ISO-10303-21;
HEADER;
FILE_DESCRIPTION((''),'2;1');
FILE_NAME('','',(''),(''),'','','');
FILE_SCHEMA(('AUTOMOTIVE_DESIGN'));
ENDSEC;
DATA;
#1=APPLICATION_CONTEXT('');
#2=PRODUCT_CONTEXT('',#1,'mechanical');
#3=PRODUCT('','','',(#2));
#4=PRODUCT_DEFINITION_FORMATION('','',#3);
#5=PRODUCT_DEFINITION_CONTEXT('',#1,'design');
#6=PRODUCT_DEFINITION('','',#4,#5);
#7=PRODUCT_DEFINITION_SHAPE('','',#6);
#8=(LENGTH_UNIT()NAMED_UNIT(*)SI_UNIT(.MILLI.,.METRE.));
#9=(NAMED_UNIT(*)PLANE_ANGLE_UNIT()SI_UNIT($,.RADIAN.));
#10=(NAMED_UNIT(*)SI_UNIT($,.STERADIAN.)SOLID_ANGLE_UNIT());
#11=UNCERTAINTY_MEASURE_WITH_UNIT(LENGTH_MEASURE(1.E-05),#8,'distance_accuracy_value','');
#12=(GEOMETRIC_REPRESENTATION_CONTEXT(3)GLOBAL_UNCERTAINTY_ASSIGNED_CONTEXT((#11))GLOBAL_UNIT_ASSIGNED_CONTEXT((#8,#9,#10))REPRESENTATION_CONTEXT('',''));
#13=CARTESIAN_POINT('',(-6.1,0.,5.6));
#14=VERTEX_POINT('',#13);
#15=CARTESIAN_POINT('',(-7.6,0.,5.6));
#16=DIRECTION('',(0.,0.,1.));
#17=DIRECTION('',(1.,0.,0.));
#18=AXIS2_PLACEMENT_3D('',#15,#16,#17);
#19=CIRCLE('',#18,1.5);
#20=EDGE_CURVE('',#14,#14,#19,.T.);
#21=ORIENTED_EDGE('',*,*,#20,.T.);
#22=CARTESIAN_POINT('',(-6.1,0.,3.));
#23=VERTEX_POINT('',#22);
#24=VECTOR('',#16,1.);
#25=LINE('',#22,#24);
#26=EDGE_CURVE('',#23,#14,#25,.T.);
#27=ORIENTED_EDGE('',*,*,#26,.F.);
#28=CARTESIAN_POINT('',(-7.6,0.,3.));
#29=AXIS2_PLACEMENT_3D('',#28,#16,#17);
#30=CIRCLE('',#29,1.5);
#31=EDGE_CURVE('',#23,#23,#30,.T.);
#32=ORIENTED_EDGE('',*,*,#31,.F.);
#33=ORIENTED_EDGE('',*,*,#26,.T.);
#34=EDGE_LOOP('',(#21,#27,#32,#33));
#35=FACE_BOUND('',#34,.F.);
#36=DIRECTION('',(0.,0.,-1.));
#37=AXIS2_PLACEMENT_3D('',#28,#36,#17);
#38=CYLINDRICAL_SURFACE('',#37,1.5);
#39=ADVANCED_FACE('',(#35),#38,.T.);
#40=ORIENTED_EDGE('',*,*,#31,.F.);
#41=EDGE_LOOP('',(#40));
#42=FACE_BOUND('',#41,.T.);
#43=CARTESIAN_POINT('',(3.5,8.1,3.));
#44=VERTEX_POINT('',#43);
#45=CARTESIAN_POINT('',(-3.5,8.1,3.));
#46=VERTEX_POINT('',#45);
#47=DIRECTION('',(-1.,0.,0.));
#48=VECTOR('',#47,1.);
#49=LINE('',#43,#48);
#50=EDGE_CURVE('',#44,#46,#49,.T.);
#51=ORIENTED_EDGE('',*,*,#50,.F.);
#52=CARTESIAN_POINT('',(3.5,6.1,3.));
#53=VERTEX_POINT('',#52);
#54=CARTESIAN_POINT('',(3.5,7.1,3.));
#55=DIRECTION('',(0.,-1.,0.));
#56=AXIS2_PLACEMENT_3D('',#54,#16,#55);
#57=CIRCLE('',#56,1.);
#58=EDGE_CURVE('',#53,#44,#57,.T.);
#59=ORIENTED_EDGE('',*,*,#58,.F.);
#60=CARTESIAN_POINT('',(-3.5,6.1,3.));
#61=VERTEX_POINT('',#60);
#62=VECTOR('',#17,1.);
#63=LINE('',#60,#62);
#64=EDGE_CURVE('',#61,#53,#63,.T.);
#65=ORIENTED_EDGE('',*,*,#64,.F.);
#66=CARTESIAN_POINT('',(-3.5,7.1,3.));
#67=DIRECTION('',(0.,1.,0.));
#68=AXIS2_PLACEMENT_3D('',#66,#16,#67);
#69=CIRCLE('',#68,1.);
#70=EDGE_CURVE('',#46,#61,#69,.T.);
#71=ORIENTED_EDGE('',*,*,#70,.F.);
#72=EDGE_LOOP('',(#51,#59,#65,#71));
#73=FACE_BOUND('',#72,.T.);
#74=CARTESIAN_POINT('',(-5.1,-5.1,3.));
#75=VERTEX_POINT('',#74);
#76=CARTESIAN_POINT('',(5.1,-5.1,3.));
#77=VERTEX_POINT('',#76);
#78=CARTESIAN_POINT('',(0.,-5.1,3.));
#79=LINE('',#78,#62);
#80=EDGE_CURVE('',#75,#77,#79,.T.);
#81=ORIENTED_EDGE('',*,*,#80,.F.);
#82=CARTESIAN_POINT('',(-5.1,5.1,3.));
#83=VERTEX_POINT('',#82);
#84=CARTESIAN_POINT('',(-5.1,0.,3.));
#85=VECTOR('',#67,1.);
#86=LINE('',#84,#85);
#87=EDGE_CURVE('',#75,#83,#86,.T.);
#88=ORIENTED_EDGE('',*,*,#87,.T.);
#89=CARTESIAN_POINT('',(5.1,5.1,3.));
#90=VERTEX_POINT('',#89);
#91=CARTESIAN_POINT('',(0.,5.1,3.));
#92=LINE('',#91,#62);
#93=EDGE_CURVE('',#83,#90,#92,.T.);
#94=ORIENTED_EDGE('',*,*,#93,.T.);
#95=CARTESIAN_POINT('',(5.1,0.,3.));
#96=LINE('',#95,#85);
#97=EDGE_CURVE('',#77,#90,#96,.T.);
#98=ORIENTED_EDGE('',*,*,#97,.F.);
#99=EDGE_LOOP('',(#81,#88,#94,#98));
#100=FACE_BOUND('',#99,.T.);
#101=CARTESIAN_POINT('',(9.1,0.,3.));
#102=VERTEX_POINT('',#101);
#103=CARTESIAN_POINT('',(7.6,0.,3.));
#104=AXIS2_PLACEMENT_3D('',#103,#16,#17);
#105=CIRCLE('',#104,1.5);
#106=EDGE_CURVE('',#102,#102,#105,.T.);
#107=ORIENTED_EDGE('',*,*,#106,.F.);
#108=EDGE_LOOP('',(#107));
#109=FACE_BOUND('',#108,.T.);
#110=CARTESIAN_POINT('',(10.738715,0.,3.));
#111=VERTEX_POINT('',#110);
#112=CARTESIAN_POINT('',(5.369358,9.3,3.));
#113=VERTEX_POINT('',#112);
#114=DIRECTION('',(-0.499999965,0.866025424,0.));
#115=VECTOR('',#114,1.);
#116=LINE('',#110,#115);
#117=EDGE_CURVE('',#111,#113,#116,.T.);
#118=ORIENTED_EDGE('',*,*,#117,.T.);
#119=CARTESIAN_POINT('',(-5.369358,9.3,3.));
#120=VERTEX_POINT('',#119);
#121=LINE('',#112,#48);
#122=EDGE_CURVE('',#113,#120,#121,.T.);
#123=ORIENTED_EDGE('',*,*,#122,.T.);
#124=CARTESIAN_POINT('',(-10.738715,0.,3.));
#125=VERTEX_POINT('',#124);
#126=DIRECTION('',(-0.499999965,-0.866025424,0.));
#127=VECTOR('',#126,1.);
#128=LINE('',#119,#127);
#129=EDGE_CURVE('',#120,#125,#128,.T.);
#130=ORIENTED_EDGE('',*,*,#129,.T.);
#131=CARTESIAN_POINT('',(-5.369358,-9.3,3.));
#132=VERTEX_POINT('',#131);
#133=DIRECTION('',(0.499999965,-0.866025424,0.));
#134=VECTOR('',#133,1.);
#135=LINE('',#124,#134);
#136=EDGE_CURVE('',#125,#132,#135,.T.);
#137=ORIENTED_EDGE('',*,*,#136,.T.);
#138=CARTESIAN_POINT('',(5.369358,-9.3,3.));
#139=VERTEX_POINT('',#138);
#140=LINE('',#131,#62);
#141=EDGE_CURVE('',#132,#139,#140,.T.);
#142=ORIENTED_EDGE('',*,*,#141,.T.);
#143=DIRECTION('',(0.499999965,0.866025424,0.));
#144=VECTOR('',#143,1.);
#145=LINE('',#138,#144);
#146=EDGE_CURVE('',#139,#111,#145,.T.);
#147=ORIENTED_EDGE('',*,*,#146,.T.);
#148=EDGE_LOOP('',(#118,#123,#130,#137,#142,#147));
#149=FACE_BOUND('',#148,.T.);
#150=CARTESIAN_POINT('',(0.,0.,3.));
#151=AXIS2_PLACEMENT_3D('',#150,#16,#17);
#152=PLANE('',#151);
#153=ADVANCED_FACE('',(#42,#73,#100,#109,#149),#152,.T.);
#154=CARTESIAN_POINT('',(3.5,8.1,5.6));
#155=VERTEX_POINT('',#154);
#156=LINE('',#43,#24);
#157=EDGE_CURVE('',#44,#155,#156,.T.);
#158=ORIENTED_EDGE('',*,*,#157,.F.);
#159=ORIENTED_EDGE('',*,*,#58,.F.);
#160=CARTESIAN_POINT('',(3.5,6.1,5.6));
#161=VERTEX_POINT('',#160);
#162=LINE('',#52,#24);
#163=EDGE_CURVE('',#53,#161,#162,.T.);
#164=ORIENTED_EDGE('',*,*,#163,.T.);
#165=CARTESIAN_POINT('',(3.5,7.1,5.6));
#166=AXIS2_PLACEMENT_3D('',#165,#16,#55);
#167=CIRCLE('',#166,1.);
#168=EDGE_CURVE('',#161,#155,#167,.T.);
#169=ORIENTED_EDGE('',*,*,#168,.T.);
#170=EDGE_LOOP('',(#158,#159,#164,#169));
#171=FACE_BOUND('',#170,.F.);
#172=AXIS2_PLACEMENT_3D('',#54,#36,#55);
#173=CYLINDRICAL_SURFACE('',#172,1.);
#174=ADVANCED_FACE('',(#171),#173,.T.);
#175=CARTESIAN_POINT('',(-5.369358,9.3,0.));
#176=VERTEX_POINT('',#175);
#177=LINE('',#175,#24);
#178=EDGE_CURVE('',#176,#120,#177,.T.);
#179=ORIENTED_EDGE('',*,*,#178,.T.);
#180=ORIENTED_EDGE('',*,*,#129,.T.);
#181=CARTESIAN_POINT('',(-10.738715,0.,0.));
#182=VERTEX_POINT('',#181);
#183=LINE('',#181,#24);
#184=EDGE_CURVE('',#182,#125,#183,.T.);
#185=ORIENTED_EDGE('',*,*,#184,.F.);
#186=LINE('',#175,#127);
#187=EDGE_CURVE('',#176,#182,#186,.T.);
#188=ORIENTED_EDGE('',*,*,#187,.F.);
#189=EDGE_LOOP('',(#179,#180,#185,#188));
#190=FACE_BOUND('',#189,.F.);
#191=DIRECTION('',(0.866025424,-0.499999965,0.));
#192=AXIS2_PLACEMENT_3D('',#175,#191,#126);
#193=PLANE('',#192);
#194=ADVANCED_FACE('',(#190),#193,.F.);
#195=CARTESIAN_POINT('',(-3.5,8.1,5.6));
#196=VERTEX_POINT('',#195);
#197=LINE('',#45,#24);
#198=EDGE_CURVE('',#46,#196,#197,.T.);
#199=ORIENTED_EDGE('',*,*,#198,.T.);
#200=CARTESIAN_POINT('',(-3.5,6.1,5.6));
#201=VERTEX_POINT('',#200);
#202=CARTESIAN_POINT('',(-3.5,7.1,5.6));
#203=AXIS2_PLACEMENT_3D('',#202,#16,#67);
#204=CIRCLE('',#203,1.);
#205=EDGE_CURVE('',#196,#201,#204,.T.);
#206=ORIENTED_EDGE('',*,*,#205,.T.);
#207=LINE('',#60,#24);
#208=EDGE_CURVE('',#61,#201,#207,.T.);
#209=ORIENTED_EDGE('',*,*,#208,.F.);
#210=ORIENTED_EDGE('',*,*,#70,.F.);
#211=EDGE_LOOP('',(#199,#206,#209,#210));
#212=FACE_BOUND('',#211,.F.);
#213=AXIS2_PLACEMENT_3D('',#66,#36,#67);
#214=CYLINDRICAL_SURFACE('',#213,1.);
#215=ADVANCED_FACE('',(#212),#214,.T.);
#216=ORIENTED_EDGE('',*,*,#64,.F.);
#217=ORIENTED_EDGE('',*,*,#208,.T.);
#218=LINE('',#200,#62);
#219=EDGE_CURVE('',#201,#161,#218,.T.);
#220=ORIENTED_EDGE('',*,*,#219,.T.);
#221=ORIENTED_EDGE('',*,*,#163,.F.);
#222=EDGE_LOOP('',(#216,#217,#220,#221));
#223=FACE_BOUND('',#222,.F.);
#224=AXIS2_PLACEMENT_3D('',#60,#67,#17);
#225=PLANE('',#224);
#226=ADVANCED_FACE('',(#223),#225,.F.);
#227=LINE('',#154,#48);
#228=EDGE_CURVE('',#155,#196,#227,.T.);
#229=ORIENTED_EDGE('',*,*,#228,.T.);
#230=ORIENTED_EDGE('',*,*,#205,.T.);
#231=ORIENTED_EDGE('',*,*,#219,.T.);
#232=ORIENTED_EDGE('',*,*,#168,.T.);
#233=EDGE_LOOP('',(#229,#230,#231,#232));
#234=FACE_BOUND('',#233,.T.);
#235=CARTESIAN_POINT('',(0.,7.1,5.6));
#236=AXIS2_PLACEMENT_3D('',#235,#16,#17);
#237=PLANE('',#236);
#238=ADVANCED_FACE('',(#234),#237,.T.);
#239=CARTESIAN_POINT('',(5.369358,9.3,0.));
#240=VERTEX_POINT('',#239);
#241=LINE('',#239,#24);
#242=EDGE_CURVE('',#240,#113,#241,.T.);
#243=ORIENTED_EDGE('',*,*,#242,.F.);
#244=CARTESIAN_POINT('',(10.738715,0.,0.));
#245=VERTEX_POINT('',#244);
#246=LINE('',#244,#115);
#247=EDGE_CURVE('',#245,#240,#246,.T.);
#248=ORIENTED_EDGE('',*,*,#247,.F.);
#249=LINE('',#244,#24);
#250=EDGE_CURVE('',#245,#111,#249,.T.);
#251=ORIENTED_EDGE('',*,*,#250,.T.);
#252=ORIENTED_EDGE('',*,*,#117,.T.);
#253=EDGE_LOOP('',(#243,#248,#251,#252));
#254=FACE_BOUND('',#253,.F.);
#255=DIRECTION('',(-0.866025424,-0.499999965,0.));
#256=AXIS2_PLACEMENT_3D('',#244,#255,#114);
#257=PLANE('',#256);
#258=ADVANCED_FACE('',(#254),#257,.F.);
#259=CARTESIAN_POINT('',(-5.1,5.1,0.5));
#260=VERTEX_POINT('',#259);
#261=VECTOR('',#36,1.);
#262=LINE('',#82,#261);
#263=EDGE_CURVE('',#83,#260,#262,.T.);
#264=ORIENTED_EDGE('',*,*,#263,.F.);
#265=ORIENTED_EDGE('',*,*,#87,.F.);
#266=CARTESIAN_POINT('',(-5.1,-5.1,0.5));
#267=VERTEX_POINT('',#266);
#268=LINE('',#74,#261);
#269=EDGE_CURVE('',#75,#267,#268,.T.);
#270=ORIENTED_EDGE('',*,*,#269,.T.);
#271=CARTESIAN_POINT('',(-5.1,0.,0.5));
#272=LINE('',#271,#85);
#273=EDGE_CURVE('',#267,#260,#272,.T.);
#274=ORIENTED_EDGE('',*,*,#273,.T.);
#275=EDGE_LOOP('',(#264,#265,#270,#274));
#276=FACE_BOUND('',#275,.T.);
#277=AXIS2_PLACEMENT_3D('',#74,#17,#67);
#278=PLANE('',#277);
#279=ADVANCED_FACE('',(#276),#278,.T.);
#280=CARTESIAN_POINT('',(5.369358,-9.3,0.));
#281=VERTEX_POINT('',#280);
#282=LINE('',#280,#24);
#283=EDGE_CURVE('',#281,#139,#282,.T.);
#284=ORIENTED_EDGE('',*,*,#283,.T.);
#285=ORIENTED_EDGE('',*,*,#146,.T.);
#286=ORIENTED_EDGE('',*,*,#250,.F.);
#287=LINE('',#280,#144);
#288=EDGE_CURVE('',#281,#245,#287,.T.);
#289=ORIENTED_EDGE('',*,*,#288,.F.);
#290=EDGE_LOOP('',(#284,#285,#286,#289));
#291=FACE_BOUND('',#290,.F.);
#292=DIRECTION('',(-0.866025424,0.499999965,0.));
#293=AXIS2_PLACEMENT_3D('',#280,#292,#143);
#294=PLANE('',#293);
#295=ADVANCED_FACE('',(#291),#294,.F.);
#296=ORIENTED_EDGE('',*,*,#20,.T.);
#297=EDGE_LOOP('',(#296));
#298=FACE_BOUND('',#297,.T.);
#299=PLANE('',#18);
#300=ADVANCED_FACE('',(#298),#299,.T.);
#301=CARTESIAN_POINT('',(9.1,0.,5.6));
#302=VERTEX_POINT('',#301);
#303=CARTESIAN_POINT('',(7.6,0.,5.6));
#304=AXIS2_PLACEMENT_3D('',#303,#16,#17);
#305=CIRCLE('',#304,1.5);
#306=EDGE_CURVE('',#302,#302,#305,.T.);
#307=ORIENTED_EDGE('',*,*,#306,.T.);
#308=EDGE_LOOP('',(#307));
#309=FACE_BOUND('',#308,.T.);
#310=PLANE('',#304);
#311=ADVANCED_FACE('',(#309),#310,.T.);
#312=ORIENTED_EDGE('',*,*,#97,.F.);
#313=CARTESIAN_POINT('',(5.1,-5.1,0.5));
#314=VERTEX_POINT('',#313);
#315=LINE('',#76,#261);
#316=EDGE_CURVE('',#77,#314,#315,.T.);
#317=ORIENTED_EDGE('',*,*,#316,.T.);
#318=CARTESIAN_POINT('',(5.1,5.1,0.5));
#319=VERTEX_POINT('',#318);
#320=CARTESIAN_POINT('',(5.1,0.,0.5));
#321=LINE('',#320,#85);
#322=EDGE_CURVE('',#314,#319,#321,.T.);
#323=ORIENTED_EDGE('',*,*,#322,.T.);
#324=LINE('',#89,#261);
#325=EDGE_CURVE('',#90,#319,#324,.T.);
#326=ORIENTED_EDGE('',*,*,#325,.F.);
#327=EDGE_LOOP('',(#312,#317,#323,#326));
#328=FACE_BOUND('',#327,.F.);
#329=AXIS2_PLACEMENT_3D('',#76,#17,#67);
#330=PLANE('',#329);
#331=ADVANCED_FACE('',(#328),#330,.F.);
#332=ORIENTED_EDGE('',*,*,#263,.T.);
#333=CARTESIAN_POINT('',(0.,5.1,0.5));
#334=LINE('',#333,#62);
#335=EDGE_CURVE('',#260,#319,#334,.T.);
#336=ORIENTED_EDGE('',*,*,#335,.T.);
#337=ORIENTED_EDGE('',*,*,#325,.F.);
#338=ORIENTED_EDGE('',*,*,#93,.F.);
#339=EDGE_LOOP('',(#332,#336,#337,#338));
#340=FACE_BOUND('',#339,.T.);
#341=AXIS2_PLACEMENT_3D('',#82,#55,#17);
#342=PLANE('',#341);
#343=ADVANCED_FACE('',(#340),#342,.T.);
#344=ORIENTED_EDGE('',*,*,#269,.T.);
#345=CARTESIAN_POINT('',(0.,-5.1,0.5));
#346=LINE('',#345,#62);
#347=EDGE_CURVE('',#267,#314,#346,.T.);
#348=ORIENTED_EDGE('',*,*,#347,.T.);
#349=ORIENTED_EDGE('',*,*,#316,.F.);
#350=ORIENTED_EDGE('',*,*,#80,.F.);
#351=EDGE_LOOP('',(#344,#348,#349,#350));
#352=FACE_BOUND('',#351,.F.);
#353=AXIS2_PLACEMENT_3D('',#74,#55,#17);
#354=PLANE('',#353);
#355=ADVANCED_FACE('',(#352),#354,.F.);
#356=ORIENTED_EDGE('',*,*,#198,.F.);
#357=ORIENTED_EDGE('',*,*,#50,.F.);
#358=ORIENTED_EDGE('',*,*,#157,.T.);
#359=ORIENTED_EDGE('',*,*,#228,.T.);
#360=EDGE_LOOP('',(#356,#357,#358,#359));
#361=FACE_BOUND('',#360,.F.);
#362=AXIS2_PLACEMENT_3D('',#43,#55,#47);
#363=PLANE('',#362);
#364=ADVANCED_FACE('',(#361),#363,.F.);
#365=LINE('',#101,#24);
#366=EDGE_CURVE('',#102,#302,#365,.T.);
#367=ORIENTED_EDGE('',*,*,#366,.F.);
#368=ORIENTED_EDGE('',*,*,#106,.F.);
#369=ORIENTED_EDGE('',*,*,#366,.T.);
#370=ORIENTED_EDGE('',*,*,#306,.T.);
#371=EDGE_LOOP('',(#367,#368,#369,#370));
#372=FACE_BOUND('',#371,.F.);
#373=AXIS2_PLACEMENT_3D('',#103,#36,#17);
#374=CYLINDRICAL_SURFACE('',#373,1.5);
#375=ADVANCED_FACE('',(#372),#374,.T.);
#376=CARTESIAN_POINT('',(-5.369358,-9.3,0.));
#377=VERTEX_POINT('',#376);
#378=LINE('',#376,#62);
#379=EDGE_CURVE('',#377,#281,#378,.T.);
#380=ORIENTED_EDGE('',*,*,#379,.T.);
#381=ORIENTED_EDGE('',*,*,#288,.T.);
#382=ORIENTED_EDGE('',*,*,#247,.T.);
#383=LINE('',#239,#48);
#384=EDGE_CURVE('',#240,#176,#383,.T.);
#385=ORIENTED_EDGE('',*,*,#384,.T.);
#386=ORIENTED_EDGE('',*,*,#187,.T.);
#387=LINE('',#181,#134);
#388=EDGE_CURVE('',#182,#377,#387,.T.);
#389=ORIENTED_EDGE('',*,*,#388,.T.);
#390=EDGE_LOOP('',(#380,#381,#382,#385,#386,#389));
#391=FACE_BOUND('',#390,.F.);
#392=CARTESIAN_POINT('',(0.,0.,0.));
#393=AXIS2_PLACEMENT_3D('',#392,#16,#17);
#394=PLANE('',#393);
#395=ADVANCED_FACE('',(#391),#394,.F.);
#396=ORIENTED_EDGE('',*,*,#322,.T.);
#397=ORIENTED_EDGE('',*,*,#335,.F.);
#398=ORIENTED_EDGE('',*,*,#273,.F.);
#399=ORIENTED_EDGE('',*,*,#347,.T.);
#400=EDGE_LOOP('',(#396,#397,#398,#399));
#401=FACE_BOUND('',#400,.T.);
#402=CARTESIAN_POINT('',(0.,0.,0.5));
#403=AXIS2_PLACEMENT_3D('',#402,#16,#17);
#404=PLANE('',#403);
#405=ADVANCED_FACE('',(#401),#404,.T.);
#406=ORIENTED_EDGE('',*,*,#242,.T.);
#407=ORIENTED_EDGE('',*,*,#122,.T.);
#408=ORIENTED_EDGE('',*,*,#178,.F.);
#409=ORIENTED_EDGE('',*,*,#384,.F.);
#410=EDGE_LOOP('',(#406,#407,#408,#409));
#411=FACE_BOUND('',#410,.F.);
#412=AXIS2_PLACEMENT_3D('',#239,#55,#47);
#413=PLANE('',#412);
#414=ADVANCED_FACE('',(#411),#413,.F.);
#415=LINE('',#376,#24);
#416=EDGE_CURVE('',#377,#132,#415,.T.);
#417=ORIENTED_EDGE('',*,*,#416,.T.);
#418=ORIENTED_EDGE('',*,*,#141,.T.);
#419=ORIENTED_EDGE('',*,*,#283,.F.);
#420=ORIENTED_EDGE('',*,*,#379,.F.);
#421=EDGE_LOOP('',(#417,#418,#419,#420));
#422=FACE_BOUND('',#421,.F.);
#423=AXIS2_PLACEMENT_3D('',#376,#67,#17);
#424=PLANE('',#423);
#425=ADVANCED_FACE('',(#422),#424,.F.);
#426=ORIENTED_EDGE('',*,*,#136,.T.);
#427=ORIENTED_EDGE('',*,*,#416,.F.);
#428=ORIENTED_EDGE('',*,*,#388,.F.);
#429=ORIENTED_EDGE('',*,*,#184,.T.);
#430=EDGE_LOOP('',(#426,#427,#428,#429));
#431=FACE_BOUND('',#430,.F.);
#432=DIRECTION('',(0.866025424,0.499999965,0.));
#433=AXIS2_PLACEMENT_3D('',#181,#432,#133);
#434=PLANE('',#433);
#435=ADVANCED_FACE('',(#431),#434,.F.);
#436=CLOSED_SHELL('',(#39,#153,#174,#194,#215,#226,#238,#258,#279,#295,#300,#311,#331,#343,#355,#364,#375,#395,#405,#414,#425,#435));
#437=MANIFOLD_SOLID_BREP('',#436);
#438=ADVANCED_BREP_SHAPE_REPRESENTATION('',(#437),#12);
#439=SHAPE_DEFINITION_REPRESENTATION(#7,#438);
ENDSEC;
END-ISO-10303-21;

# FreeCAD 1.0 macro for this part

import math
import FreeCAD as App
import Part
import Sketcher

V = App.Vector
Q = App.Units.Quantity


def add_polygon(sketch, points):
    """Adds a closed chain of lines whose ends are joined by coincident constraints."""
    first, n = sketch.GeometryCount, len(points)
    for a, b in zip(points, points[1:] + points[:1]):
        sketch.addGeometry(Part.LineSegment(App.Vector(*a, 0), App.Vector(*b, 0)), False)
    for i in range(n):
        sketch.addConstraint(Sketcher.Constraint("Coincident", first + i, 2, first + (i + 1) % n, 1))

doc = App.newDocument("Part")
body = doc.addObject("PartDesign::Body", "Body")

# Sketch on XY plane
sketch1 = doc.addObject("Sketcher::SketchObject", "Sketch")
body.addObject(sketch1)
sketch1.AttachmentSupport = (doc.XY_Plane, [""])
sketch1.MapMode = "FlatFace"
add_polygon(sketch1, [(-5, 9), (-11, 0), (-5, -9), (5, -9), (11, 0), (5, 9)])  # lines 0-5
sketch1.addConstraint([
    Sketcher.Constraint("Horizontal", 2),
    Sketcher.Constraint("Horizontal", 5),
    Sketcher.Constraint("Symmetric", 0, 2, 3, 2, -1, 1),
    Sketcher.Constraint("Symmetric", 1, 2, 4, 2, -1, 1),
    Sketcher.Constraint("PointOnObject", 0, 2, -1),
    Sketcher.Constraint("Parallel", 0, 3),
    Sketcher.Constraint("Vertical", 2, 2, 4, 2),
    Sketcher.Constraint("Angle", 0, Q("-119.999998 deg")),
    Sketcher.Constraint("DistanceY", 1, 2, -1, 1, Q("9.3 mm")),
    Sketcher.Constraint("DistanceX", 2, 1, 2, 2, Q("10.738716 mm")),
])
pad1 = doc.addObject("PartDesign::Pad", "Pad")
body.addObject(pad1)
pad1.Profile = sketch1
pad1.Length = 3
body2 = doc.addObject("PartDesign::Body", "Body001")
doc.recompute()

body.Placement = App.Placement(V(0, 0, 3), App.Rotation(V(0, 0, 1), 0))
boolean = doc.addObject("PartDesign::Boolean", "Boolean")
body2.addObject(boolean)
boolean.Type = "Fuse"
boolean.addObjects([body])
body3 = doc.addObject("PartDesign::Body", "Body002")
doc.recompute()

body2.Placement = App.Placement(V(0, 0, -3), App.Rotation(V(0, 0, 1), 0))
boolean2 = doc.addObject("PartDesign::Boolean", "Boolean001")
body3.addObject(boolean2)
boolean2.Type = "Fuse"
boolean2.addObjects([body2])

# Sketch on XY plane
sketch2 = doc.addObject("Sketcher::SketchObject", "Sketch001")
body3.addObject(sketch2)
sketch2.AttachmentSupport = (doc.getObject("XY_Plane002"), [""])
sketch2.MapMode = "FlatFace"
sketch2.AttachmentOffset = App.Placement(V(0, 0, 3), App.Rotation())
sketch2.addGeometry([
    Part.Circle(V(-7.6, 0, 0), V(0, 0, 1), 1.5),  # 0
    Part.Circle(V(7.6, 0, 0), V(0, 0, 1), 1.5),  # 1
    Part.ArcOfCircle(Part.Circle(V(-3.5, 7.1, 0), V(0, 0, 1), 1), math.radians(90), math.radians(270)),  # 2
    Part.LineSegment(V(-3.5, 6.1, 0), V(3.5, 6.1, 0)),  # 3
    Part.ArcOfCircle(Part.Circle(V(3.5, 7.1, 0), V(0, 0, 1), 1), math.radians(-90), math.radians(90)),  # 4
    Part.LineSegment(V(3.5, 8.1, 0), V(-3.5, 8.1, 0)),  # 5
], False)
sketch2.addConstraint([
    Sketcher.Constraint("Tangent", 2, 2, 3, 1),
    Sketcher.Constraint("Tangent", 3, 2, 4, 1),
    Sketcher.Constraint("Tangent", 4, 2, 5, 1),
    Sketcher.Constraint("Tangent", 5, 2, 2, 1),
    Sketcher.Constraint("Horizontal", 3),
    Sketcher.Constraint("Horizontal", 5),
    Sketcher.Constraint("Equal", 0, 1),
    Sketcher.Constraint("Symmetric", 0, 3, 1, 3, -1, 1),
    Sketcher.Constraint("PointOnObject", 0, 3, -1),
    Sketcher.Constraint("Diameter", 0, Q("3 mm")),
    Sketcher.Constraint("Radius", 2, Q("1 mm")),
    Sketcher.Constraint("DistanceX", 3, 1, 3, 2, Q("7 mm")),
    Sketcher.Constraint("DistanceX", 0, 3, -1, 1, Q("7.6 mm")),
    Sketcher.Constraint("DistanceX", 2, 3, -1, 1, Q("3.5 mm")),
    Sketcher.Constraint("DistanceY", -1, 1, 2, 3, Q("7.1 mm")),
])
pad2 = doc.addObject("PartDesign::Pad", "Pad001")
body3.addObject(pad2)
pad2.Profile = sketch2
pad2.Length = 2.6

# Sketch on XY plane
sketch3 = doc.addObject("Sketcher::SketchObject", "Sketch002")
body3.addObject(sketch3)
sketch3.AttachmentSupport = (doc.getObject("XY_Plane002"), [""])
sketch3.MapMode = "FlatFace"
sketch3.AttachmentOffset = App.Placement(V(0, 0, 3), App.Rotation())
add_polygon(sketch3, [(-5, 5), (-5, -5), (5, -5), (5, 5)])  # lines 0-3
sketch3.addConstraint([
    Sketcher.Constraint("Vertical", 0),
    Sketcher.Constraint("Horizontal", 1),
    Sketcher.Constraint("Vertical", 2),
    Sketcher.Constraint("Horizontal", 3),
    Sketcher.Constraint("Symmetric", 0, 2, 2, 2, -1, 1),
    Sketcher.Constraint("Equal", 3, 0),
    Sketcher.Constraint("DistanceX", 1, 1, 1, 2, Q("10.2 mm")),
])
pocket1 = doc.addObject("PartDesign::Pocket", "Pocket")
body3.addObject(pocket1)
pocket1.Profile = sketch3
pocket1.Length = 2.5

doc.recompute()
